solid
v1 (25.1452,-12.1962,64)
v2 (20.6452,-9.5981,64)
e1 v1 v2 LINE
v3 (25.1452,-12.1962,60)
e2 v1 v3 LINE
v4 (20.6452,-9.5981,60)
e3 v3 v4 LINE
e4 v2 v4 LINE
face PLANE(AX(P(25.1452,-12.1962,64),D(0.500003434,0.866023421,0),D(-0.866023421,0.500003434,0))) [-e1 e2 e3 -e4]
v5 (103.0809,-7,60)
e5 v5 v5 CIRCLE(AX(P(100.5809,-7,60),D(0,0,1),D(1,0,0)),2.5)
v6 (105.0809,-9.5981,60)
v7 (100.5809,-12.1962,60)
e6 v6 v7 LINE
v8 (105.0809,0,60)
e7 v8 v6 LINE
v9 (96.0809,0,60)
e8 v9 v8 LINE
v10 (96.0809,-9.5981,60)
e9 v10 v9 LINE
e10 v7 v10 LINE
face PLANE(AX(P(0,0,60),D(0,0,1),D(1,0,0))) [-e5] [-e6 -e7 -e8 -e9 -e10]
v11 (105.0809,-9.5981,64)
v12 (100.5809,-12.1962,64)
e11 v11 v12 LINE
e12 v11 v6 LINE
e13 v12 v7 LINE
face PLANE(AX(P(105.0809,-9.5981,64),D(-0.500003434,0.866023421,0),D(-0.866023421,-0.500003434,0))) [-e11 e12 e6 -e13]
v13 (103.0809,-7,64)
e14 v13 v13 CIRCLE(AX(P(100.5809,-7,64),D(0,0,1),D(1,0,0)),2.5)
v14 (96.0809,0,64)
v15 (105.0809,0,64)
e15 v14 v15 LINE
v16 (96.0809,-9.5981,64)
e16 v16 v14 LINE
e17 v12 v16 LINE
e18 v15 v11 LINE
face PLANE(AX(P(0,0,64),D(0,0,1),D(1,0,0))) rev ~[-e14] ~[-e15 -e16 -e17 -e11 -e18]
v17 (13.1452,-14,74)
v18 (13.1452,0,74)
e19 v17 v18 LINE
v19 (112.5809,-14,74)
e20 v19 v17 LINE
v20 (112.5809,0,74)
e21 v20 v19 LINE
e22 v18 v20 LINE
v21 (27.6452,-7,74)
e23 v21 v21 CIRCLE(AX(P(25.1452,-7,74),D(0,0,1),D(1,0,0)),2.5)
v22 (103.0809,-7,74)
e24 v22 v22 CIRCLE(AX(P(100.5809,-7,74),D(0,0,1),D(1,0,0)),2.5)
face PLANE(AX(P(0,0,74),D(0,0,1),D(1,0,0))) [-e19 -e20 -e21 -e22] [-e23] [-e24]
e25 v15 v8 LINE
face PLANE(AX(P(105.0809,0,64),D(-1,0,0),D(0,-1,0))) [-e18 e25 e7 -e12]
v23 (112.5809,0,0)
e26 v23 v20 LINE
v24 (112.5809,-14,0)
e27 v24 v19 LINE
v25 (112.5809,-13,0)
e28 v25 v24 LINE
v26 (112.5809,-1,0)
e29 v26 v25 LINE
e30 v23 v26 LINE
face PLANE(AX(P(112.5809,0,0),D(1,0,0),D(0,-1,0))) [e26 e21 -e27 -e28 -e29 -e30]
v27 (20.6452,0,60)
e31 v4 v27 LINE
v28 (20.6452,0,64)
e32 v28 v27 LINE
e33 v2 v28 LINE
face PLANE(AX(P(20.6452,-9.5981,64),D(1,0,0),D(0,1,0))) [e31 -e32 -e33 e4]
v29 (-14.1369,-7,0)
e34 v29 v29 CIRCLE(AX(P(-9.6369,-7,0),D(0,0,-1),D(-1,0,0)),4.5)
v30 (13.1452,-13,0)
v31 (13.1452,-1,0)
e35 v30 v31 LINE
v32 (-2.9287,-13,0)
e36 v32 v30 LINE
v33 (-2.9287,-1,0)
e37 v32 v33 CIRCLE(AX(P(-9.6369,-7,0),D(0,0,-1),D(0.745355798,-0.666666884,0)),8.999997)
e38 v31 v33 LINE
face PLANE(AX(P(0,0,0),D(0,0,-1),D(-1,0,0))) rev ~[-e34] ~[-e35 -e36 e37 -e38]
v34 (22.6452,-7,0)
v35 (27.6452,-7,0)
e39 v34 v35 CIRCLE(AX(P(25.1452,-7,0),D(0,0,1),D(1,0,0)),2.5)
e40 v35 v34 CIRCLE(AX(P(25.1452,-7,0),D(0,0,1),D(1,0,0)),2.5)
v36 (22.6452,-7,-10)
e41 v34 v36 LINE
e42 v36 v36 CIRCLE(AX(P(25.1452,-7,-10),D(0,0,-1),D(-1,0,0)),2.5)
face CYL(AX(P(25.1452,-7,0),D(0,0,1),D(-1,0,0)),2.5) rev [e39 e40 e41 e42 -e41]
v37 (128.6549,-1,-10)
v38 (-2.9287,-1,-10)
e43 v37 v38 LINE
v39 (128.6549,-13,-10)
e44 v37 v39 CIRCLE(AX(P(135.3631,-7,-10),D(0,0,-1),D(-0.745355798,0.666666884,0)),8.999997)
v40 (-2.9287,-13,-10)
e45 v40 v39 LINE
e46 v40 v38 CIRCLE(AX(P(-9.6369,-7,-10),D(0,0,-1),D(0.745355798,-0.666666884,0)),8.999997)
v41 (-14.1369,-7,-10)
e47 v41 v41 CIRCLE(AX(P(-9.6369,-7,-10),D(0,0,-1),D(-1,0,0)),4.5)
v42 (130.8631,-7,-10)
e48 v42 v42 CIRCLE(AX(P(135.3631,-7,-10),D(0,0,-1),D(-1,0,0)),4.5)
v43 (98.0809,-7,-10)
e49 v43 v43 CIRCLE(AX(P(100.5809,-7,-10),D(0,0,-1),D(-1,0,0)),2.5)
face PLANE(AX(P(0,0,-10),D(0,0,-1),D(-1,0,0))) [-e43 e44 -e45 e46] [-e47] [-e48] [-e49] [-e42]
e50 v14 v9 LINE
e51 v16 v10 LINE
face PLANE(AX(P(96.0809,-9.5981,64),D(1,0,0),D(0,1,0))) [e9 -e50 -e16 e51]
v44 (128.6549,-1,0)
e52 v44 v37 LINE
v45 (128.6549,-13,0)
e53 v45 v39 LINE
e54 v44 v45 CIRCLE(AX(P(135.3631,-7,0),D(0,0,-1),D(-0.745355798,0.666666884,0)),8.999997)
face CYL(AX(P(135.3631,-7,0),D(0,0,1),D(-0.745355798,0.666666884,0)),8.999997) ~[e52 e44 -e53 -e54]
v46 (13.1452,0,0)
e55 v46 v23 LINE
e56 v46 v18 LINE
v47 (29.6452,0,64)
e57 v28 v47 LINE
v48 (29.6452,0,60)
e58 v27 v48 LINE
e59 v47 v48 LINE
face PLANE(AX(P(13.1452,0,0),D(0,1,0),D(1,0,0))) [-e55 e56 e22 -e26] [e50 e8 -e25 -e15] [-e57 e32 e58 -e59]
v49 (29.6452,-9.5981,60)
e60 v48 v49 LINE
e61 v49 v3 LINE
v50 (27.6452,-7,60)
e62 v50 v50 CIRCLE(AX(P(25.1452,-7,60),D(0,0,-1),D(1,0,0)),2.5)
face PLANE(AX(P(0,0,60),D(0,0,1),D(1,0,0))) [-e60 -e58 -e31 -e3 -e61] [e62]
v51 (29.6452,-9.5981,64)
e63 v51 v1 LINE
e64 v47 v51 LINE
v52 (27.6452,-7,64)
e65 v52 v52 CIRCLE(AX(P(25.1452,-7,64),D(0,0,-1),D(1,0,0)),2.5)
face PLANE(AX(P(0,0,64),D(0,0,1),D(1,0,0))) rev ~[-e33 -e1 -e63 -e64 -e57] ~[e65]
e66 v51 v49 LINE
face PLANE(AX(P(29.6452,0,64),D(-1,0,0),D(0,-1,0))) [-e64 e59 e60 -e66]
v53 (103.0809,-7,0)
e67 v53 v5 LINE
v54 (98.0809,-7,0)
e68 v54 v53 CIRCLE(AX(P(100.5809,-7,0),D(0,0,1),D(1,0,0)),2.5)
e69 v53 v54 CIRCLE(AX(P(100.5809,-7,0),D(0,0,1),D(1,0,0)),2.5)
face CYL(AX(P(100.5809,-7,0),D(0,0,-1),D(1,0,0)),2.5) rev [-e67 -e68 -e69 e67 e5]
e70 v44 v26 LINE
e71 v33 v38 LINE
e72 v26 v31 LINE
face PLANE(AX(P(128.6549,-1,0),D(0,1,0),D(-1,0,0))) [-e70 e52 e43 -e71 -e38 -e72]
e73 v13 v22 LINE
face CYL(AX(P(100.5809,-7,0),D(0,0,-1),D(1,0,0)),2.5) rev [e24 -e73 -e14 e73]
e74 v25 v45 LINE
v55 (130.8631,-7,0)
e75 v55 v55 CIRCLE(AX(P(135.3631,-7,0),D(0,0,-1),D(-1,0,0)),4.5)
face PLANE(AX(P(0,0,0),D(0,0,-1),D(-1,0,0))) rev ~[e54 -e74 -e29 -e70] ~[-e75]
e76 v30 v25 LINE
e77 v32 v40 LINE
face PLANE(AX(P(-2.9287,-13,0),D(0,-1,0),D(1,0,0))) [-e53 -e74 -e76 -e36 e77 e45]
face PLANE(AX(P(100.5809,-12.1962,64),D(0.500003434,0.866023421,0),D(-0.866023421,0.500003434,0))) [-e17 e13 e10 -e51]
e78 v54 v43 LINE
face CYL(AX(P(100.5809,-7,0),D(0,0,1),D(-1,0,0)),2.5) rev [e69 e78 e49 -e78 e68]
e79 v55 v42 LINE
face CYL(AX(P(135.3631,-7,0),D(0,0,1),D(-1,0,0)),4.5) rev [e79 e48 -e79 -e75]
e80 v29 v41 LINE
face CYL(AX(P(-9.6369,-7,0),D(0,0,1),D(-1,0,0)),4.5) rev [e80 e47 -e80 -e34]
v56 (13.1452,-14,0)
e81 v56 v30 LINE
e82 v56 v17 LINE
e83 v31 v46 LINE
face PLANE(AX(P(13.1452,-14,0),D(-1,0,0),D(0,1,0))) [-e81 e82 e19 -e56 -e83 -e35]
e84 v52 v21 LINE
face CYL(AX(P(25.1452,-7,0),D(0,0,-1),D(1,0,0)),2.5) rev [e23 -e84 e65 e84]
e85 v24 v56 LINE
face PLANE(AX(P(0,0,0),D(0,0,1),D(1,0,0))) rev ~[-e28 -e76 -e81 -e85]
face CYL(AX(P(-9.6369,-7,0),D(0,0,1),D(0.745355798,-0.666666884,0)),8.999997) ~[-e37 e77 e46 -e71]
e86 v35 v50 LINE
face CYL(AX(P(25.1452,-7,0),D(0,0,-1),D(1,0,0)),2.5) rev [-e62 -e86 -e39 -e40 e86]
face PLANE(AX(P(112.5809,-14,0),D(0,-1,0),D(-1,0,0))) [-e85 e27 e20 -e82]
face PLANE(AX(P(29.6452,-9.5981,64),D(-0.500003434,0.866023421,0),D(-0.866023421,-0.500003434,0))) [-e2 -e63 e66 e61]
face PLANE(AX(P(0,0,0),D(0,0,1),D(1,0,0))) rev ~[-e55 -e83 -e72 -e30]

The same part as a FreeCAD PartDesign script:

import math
import FreeCAD as App
import Part
import Sketcher
Q = App.Units.Quantity


def add_polygon(sketch, points):
    """Adds a closed chain of lines whose ends are joined by coincident constraints."""
    first, n = sketch.GeometryCount, len(points)
    for a, b in zip(points, points[1:] + points[:1]):
        sketch.addGeometry(Part.LineSegment(App.Vector(*a, 0), App.Vector(*b, 0)), False)
    for i in range(n):
        sketch.addConstraint(Sketcher.Constraint("Coincident", first + i, 2, first + (i + 1) % n, 1))

doc = App.newDocument("Part")
body = doc.addObject("PartDesign::Body", "Body")

# Sketch on XY plane
sketch1 = doc.addObject("Sketcher::SketchObject", "Sketch")
body.addObject(sketch1)
sketch1.AttachmentSupport = (doc.XY_Plane, [""])
sketch1.MapMode = "FlatFace"
add_polygon(sketch1, [(112.6, 0), (13.1, 0), (13.1, -14), (112.6, -14)])  # lines 0-3
sketch1.addGeometry(Part.Circle(App.Vector(25.1, -7, 0), App.Vector(0, 0, 1), 2.5), False)  # 4
sketch1.addGeometry(Part.Circle(App.Vector(100.6, -7, 0), App.Vector(0, 0, 1), 2.5), False)  # 5
sketch1.addConstraint([
    Sketcher.Constraint("Horizontal", 0),
    Sketcher.Constraint("Vertical", 1),
    Sketcher.Constraint("Horizontal", 2),
    Sketcher.Constraint("Vertical", 3),
    Sketcher.Constraint("Equal", 4, 5),
    Sketcher.Constraint("PointOnObject", 0, 2, -1),
    Sketcher.Constraint("Horizontal", 4, 3, 5, 3),
    Sketcher.Constraint("Diameter", 4, Q("5 mm")),
    Sketcher.Constraint("DistanceY", 4, 3, -1, 1, Q("7 mm")),
    Sketcher.Constraint("DistanceX", 0, 2, 4, 3, Q("12 mm")),
    Sketcher.Constraint("DistanceY", 1, 2, 4, 3, Q("7 mm")),
    Sketcher.Constraint("DistanceX", 5, 3, 2, 2, Q("12 mm")),
    Sketcher.Constraint("DistanceX", 0, 2, 0, 1, Q("99.4357 mm")),
    Sketcher.Constraint("DistanceX", -1, 1, 5, 3, Q("100.581 mm")),
])
pad1 = doc.addObject("PartDesign::Pad", "Pad")
body.addObject(pad1)
pad1.Profile = sketch1
pad1.Length = 74

# Sketch on XY plane
sketch2 = doc.addObject("Sketcher::SketchObject", "Sketch001")
body.addObject(sketch2)
sketch2.AttachmentSupport = (doc.XY_Plane, [""])
sketch2.MapMode = "FlatFace"
sketch2.AttachmentOffset = App.Placement(App.Vector(0, 0, 64), App.Rotation())
add_polygon(sketch2, [(20.6, -9.6), (25.1, -12.2), (29.6, -9.6), (29.6, 0), (20.6, 0)])  # lines 0-4
add_polygon(sketch2, [(105.1, 0), (96.1, 0), (96.1, -9.6), (100.6, -12.2), (105.1, -9.6)])  # lines 5-9
sketch2.addGeometry(Part.Circle(App.Vector(100.6, -7, 0), App.Vector(0, 0, 1), 2.5), False)  # 10
sketch2.addConstraint([
    Sketcher.Constraint("Vertical", 2),
    Sketcher.Constraint("Horizontal", 3),
    Sketcher.Constraint("Vertical", 4),
    Sketcher.Constraint("Horizontal", 5),
    Sketcher.Constraint("Vertical", 6),
    Sketcher.Constraint("Vertical", 9),
    Sketcher.Constraint("PointOnObject", 2, 2, -1),
    Sketcher.Constraint("PointOnObject", 5, 2, -1),
    Sketcher.Constraint("Parallel", 0, 7),
    Sketcher.Constraint("Parallel", 1, 8),
    Sketcher.Constraint("Horizontal", 1, 2, 4, 2),
    Sketcher.Constraint("Horizontal", 4, 2, 6, 2),
    Sketcher.Constraint("Horizontal", 0, 2, 7, 2),
    Sketcher.Constraint("Horizontal", 6, 2, 8, 2),
    Sketcher.Constraint("Vertical", 10, 3, 7, 2),
    Sketcher.Constraint("Equal", 0, 1),
    Sketcher.Constraint("DistanceX", 3, 2, 3, 1, Q("9 mm")),
    Sketcher.Constraint("Diameter", 10, Q("5 mm")),
    Sketcher.Constraint("Angle", 0, Q("-30.0002 deg")),
    Sketcher.Constraint("DistanceY", 10, 3, -1, 1, Q("7 mm")),
    Sketcher.Constraint("DistanceY", 2, 1, 2, 2, Q("9.598 mm")),
    Sketcher.Constraint("DistanceX", -1, 1, 10, 3, Q("100.581 mm")),
    Sketcher.Constraint("DistanceX", -1, 1, 0, 2, Q("25.1452 mm")),
])
pocket1 = doc.addObject("PartDesign::Pocket", "Pocket")
body.addObject(pocket1)
pocket1.Profile = sketch2
pocket1.Length = 4

# Sketch on XY plane
sketch3 = doc.addObject("Sketcher::SketchObject", "Sketch002")
body.addObject(sketch3)
sketch3.AttachmentSupport = (doc.XY_Plane, [""])
sketch3.MapMode = "FlatFace"
sketch3.addGeometry([
    Part.LineSegment(App.Vector(-2.9, -1, 0), App.Vector(128.7, -1, 0)),  # 0
    Part.ArcOfCircle(Part.Circle(App.Vector(135.4, -7, 0), App.Vector(0, 0, 1), 9), math.radians(-138), math.radians(138)),  # 1
    Part.LineSegment(App.Vector(128.7, -13, 0), App.Vector(-2.9, -13, 0)),  # 2
    Part.ArcOfCircle(Part.Circle(App.Vector(-9.6, -7, 0), App.Vector(0, 0, 1), 9), math.radians(42), math.radians(318)),  # 3
    Part.Circle(App.Vector(135.4, -7, 0), App.Vector(0, 0, 1), 4.5),  # 4
    Part.Circle(App.Vector(100.6, -7, 0), App.Vector(0, 0, 1), 2.5),  # 5
    Part.Circle(App.Vector(25.1, -7, 0), App.Vector(0, 0, 1), 2.5),  # 6
    Part.Circle(App.Vector(-9.6, -7, 0), App.Vector(0, 0, 1), 4.5),  # 7
], False)
sketch3.addConstraint([
    Sketcher.Constraint("Coincident", 0, 2, 1, 2),
    Sketcher.Constraint("Coincident", 1, 1, 2, 1),
    Sketcher.Constraint("Coincident", 2, 2, 3, 2),
    Sketcher.Constraint("Coincident", 3, 1, 0, 1),
    Sketcher.Constraint("Horizontal", 0),
    Sketcher.Constraint("Horizontal", 2),
    Sketcher.Constraint("Coincident", 4, 3, 1, 3),
    Sketcher.Constraint("Coincident", 7, 3, 3, 3),
    Sketcher.Constraint("Equal", 1, 3),
    Sketcher.Constraint("Equal", 5, 6),
    Sketcher.Constraint("Equal", 4, 7),
    Sketcher.Constraint("Horizontal", 1, 3, 3, 3),
    Sketcher.Constraint("Horizontal", 4, 3, 5, 3),
    Sketcher.Constraint("Horizontal", 5, 3, 6, 3),
    Sketcher.Constraint("Vertical", 0, 2, 1, 1),
    Sketcher.Constraint("Diameter", 4, Q("9 mm")),
    Sketcher.Constraint("Radius", 1, Q("9 mm")),
    Sketcher.Constraint("Diameter", 5, Q("5 mm")),
    Sketcher.Constraint("DistanceY", 1, 3, -1, 1, Q("7 mm")),
    Sketcher.Constraint("DistanceX", 3, 3, 1, 3, Q("145 mm")),
    Sketcher.Constraint("DistanceY", 1, 1, 0, 2, Q("12 mm")),
    Sketcher.Constraint("DistanceX", 3, 3, 6, 3, Q("34.782 mm")),
    Sketcher.Constraint("DistanceX", 5, 3, 1, 3, Q("34.7822 mm")),
    Sketcher.Constraint("DistanceX", -1, 1, 1, 3, Q("135.363 mm")),
])
pad2 = doc.addObject("PartDesign::Pad", "Pad001")
body.addObject(pad2)
pad2.Profile = sketch3
pad2.Length = 10
pad2.Reversed = True

doc.recompute()
